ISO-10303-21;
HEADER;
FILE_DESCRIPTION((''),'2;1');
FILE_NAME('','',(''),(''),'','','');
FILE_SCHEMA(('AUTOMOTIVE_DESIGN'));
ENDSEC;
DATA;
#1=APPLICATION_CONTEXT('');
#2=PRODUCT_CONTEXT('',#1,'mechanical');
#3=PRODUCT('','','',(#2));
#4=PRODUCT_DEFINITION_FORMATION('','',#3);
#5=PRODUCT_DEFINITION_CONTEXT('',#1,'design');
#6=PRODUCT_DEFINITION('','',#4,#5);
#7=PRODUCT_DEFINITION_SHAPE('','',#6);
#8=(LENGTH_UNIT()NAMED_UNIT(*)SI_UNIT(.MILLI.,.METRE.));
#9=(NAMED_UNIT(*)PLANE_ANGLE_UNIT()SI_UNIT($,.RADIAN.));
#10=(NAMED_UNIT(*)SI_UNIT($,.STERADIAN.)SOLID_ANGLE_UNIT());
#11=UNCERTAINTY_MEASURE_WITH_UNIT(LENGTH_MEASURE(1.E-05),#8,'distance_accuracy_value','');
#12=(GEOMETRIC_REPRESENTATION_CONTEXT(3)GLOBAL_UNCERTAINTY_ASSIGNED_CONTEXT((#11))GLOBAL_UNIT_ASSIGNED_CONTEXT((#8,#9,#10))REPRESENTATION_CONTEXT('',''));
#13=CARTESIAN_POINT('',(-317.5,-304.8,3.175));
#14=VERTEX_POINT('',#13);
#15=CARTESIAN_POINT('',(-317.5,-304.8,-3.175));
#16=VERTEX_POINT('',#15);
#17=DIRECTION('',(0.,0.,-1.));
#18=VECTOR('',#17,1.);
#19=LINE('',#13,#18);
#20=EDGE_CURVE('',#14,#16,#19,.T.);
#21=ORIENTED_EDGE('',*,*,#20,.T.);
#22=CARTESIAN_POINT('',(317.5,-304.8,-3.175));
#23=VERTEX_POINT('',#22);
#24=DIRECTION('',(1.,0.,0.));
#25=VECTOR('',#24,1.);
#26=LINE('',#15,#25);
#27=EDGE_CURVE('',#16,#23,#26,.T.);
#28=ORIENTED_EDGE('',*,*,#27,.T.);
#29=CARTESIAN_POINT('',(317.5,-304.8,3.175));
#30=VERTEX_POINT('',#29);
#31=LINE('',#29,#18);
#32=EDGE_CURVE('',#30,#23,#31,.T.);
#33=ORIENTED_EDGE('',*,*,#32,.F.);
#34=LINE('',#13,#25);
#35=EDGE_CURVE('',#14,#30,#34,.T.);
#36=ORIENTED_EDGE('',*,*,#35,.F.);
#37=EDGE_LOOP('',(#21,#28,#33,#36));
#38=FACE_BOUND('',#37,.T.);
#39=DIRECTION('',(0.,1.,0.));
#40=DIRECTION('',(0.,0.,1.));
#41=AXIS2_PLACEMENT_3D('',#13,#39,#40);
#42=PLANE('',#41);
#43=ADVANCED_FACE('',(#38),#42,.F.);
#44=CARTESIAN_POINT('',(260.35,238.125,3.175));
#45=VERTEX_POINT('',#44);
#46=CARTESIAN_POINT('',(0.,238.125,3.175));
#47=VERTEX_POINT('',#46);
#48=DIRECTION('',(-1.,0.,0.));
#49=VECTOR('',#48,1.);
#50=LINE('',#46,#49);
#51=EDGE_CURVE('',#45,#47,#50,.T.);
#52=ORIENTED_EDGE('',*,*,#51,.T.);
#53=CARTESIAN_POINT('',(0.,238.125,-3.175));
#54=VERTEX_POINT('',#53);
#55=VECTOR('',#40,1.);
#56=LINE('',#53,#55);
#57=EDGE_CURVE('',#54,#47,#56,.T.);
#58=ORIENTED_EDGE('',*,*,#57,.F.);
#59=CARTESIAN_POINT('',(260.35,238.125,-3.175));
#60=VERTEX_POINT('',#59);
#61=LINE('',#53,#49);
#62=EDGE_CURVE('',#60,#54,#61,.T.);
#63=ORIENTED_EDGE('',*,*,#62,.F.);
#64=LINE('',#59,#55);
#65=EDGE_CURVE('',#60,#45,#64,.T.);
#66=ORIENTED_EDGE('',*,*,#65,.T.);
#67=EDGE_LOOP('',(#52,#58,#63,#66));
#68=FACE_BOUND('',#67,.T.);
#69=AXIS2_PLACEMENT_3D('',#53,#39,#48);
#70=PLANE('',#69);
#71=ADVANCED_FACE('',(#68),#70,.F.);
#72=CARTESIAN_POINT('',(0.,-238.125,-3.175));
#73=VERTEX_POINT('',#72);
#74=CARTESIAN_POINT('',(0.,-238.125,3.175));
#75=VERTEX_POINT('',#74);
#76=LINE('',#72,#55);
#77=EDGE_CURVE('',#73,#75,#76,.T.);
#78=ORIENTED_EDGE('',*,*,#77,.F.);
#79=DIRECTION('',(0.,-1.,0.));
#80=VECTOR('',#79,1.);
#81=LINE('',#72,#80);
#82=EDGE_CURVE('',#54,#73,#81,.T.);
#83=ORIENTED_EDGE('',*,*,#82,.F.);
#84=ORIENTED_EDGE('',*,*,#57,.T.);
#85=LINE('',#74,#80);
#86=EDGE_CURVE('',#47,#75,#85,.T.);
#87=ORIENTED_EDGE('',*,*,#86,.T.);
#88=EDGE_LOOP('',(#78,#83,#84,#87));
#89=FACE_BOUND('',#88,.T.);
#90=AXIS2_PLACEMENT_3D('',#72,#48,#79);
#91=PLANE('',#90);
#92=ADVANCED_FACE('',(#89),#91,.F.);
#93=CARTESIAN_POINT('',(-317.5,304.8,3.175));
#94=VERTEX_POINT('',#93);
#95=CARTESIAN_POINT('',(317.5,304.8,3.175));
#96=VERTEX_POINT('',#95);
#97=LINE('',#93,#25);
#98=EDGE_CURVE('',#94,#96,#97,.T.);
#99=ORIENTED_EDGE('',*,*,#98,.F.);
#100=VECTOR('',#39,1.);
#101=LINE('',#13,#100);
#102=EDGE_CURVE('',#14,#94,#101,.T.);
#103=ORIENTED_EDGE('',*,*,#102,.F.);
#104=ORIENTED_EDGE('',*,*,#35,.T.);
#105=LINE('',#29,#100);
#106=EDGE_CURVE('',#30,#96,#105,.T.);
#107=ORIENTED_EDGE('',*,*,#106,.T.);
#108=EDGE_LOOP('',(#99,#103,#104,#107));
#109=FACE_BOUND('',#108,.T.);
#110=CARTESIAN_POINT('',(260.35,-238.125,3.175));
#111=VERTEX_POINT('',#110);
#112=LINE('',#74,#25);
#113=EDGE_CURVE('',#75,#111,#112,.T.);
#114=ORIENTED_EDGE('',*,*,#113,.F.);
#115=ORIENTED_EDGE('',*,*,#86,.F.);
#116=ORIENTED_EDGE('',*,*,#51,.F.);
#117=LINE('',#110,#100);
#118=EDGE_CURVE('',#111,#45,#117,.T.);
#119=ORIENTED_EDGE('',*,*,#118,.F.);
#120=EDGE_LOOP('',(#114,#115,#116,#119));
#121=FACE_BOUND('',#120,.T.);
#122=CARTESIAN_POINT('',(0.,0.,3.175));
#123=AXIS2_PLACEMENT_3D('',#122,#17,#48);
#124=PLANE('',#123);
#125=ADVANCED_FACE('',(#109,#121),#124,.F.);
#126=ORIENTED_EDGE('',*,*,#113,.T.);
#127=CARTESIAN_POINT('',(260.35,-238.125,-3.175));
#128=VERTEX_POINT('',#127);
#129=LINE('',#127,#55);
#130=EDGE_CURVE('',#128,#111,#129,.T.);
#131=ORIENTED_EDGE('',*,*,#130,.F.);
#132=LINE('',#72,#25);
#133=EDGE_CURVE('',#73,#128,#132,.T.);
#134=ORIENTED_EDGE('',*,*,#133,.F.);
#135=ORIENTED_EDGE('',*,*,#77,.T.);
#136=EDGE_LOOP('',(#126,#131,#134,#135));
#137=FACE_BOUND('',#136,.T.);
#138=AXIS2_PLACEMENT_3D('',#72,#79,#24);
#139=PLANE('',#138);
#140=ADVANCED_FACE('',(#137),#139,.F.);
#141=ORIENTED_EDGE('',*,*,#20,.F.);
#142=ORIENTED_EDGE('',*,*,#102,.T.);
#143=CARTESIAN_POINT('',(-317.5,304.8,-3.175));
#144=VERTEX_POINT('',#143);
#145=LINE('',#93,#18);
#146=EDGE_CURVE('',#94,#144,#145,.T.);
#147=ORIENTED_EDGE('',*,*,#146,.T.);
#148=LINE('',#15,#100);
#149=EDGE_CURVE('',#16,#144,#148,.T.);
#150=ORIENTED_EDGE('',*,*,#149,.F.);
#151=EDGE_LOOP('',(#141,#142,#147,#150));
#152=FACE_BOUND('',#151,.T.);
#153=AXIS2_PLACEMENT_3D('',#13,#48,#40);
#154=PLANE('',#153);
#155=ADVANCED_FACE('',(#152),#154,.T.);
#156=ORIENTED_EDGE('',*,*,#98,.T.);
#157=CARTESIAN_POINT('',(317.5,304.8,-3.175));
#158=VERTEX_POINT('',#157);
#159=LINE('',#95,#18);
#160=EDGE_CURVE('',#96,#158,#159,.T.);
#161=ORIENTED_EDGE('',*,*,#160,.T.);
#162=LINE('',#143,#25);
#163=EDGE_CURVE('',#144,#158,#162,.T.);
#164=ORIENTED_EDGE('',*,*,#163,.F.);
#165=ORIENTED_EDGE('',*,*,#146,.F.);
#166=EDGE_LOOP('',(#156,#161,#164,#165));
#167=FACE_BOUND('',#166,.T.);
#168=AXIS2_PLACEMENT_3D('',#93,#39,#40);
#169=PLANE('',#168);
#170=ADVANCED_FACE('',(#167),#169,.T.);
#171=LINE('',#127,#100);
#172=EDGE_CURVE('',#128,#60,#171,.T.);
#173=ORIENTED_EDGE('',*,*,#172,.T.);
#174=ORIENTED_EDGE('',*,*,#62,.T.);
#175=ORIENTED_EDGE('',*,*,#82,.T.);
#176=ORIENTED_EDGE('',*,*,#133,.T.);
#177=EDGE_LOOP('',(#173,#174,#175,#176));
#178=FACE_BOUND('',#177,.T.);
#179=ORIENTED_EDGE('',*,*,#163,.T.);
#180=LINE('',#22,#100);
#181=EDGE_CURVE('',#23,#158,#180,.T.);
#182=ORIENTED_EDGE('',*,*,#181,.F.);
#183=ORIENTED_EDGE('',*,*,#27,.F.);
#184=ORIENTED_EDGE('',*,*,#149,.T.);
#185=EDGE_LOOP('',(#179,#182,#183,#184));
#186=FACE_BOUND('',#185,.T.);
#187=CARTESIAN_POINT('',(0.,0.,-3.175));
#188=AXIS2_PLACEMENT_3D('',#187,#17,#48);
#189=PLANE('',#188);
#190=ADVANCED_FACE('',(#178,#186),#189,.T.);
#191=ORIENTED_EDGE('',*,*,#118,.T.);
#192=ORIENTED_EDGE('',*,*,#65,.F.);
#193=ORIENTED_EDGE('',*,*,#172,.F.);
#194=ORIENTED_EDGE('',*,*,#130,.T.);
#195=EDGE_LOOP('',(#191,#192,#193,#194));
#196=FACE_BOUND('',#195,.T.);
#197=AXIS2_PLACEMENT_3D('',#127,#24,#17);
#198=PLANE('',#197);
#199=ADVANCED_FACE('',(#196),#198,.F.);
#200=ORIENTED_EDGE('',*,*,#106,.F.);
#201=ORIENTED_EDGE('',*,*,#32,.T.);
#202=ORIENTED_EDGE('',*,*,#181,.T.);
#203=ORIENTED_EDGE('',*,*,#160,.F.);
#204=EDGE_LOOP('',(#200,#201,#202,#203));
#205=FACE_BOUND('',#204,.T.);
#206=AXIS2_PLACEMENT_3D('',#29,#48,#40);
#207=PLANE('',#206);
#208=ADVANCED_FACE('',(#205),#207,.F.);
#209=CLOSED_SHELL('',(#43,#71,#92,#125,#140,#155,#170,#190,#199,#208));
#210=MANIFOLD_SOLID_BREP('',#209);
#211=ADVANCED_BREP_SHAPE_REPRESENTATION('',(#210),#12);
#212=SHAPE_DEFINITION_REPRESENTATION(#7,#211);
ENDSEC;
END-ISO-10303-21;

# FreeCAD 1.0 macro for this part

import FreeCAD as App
import Part
import Sketcher
Q = App.Units.Quantity


def add_polygon(sketch, points):
    """Adds a closed chain of lines whose ends are joined by coincident constraints."""
    first, n = sketch.GeometryCount, len(points)
    for a, b in zip(points, points[1:] + points[:1]):
        sketch.addGeometry(Part.LineSegment(App.Vector(*a, 0), App.Vector(*b, 0)), False)
    for i in range(n):
        sketch.addConstraint(Sketcher.Constraint("Coincident", first + i, 2, first + (i + 1) % n, 1))

doc = App.newDocument("Part")
body = doc.addObject("PartDesign::Body", "Body")

sketch1 = body.newObject("Sketcher::SketchObject", "Sketch")
sketch1.AttachmentSupport = (doc.getObject("XY_Plane"), [""])
sketch1.MapMode = "FlatFace"
add_polygon(sketch1, [(-317.5, 304.8), (-317.5, -304.8), (317.5, -304.8), (317.5, 304.8)])
sketch1.addConstraint(Sketcher.Constraint("Vertical", 0))
sketch1.addConstraint(Sketcher.Constraint("Horizontal", 1))
sketch1.addConstraint(Sketcher.Constraint("Vertical", 2))
sketch1.addConstraint(Sketcher.Constraint("Horizontal", 3))
sketch1.addConstraint(Sketcher.Constraint("Symmetric", 0, 2, 2, 2, -1, 1))
sketch1.addConstraint(Sketcher.Constraint("DistanceX", 1, 1, 1, 2, Q("25 in")))
sketch1.addConstraint(Sketcher.Constraint("DistanceY", 0, 2, 0, 1, Q("24 in")))
pad1 = body.newObject("PartDesign::Pad", "Pad")
pad1.Profile = sketch1
pad1.Length = Q("0.25 in")
pad1.Midplane = True

sketch2 = body.newObject("Sketcher::SketchObject", "Sketch001")
sketch2.AttachmentSupport = (doc.getObject("XY_Plane"), [""])
sketch2.MapMode = "FlatFace"
sketch2.AttachmentOffset = App.Placement(App.Vector(0, 0, 0.125 * 25.4), App.Rotation())
add_polygon(sketch2, [(0, 238.125), (0, -238.125), (260.35, -238.125), (260.35, 238.125)])
sketch2.addConstraint(Sketcher.Constraint("Vertical", 0))
sketch2.addConstraint(Sketcher.Constraint("Horizontal", 1))
sketch2.addConstraint(Sketcher.Constraint("Vertical", 2))
sketch2.addConstraint(Sketcher.Constraint("Horizontal", 3))
sketch2.addConstraint(Sketcher.Constraint("Symmetric", 0, 2, 3, 2, -1, 1))
sketch2.addConstraint(Sketcher.Constraint("DistanceX", 1, 1, 1, 2, Q("10.25 in")))
sketch2.addConstraint(Sketcher.Constraint("DistanceY", 0, 2, 0, 1, Q("18.75 in")))
pocket1 = body.newObject("PartDesign::Pocket", "Pocket")
pocket1.Profile = sketch2
pocket1.Type = "ThroughAll"

doc.recompute()
